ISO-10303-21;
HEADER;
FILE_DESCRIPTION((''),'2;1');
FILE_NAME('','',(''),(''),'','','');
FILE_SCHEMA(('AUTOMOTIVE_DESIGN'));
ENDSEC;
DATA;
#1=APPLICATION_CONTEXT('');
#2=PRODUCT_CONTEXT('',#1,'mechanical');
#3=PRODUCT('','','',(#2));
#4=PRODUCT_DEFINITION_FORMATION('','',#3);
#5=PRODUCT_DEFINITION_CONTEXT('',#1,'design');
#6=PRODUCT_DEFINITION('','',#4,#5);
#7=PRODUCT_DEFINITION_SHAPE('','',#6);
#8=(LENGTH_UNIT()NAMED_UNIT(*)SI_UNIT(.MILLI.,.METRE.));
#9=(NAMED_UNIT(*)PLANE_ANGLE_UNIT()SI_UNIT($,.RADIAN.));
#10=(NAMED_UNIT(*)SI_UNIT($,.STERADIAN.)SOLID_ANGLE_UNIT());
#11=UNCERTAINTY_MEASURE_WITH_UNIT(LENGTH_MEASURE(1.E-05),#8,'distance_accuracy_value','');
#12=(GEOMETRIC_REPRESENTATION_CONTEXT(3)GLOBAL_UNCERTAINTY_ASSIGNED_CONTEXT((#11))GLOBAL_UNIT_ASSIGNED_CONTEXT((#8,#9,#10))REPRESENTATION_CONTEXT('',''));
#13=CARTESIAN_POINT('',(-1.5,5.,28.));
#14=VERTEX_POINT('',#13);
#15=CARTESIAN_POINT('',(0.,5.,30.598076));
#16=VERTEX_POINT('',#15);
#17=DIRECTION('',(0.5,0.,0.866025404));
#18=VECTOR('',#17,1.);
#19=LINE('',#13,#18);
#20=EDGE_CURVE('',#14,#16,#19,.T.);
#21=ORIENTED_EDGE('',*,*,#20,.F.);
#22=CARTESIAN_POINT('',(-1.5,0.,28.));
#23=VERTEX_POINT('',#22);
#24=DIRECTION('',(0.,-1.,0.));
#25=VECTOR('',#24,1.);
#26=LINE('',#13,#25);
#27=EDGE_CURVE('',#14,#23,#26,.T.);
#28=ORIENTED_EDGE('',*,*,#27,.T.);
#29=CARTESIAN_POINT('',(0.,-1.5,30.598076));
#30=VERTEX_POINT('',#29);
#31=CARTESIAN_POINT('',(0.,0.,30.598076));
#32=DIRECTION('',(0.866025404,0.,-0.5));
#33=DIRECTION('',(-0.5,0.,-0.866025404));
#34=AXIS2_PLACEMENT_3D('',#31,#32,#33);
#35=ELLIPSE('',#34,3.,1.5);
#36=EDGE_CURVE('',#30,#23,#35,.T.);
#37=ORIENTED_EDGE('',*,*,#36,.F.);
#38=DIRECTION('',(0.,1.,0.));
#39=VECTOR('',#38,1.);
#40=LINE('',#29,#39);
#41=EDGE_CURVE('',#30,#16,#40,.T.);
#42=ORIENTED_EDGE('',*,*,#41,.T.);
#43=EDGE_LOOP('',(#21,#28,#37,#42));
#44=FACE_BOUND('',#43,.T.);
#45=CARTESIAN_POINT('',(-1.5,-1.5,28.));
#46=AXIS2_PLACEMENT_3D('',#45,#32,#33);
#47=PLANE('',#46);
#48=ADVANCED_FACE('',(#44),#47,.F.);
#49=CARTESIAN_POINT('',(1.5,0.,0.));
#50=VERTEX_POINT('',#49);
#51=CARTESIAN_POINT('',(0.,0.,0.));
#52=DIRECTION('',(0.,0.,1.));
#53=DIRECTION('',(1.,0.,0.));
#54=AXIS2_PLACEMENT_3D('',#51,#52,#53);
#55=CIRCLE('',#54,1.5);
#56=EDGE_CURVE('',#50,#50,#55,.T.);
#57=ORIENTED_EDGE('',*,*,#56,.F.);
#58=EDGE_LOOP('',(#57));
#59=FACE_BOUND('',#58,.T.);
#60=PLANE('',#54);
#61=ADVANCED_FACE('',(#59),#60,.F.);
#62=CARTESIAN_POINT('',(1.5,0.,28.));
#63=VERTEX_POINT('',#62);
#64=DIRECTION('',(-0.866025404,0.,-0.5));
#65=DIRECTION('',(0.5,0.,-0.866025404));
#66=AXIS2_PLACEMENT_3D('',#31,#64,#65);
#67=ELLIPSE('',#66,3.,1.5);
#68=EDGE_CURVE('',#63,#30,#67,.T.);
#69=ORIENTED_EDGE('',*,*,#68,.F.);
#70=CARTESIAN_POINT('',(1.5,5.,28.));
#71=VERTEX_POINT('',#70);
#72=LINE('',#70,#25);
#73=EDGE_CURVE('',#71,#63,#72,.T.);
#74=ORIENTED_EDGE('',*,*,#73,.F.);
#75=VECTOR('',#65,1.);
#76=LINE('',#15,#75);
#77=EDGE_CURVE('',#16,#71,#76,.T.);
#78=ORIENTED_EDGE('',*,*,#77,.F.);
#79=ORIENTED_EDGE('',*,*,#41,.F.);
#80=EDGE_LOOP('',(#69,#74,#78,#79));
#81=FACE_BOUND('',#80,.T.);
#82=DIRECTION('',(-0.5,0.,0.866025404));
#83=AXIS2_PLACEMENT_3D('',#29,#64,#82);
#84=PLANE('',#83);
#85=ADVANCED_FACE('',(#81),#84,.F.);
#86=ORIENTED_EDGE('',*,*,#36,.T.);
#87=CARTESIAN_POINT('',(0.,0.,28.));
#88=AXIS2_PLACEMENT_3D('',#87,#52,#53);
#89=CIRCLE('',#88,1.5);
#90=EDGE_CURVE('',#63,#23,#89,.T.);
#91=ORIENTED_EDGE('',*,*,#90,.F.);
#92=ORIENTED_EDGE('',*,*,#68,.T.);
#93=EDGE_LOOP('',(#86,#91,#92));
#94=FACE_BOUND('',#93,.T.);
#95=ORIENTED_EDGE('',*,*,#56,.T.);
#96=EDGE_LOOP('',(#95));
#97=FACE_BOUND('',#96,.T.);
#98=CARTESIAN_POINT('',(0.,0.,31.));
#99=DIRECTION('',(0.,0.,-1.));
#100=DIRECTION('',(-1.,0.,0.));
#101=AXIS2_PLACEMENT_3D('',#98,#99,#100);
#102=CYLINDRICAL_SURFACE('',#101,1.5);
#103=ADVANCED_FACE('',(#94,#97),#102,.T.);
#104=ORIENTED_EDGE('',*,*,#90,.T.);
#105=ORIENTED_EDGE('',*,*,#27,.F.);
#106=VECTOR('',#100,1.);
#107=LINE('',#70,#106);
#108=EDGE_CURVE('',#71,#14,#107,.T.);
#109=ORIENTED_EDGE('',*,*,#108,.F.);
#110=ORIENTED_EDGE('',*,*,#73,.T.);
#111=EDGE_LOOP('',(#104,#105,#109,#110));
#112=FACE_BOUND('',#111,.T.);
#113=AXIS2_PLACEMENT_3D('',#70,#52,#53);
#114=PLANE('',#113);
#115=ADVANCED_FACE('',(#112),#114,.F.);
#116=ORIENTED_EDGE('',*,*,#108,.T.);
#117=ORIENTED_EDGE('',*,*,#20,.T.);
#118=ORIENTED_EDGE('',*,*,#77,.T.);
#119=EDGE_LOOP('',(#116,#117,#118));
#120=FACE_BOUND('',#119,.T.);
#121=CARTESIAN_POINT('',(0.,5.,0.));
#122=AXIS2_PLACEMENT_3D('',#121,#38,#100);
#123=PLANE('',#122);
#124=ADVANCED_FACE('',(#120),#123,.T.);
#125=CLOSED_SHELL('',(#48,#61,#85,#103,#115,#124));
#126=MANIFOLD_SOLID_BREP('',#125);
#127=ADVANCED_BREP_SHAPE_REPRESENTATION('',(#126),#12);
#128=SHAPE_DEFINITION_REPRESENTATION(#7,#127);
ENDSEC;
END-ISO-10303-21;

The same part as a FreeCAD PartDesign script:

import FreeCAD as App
import Part
import Sketcher

V = App.Vector
Q = App.Units.Quantity


def add_polygon(sketch, points):
    """Adds a closed chain of lines whose ends are joined by coincident constraints."""
    first, n = sketch.GeometryCount, len(points)
    for a, b in zip(points, points[1:] + points[:1]):
        sketch.addGeometry(Part.LineSegment(App.Vector(*a, 0), App.Vector(*b, 0)), False)
    for i in range(n):
        sketch.addConstraint(Sketcher.Constraint("Coincident", first + i, 2, first + (i + 1) % n, 1))

doc = App.newDocument("Part")
params = doc.addObject("Spreadsheet::Sheet", "Params")
for row, (alias, value) in enumerate([
    ("sketch1_diameter", "3 mm"),
    ("pad1_length", "31 mm"),
    ("sketch2_width", "3 mm"),
    ("sketch2_height", "1.5 mm"),
    ("pocket1_length", "3 mm"),
    ("sketch3_width", "3 mm"),
    ("pocket2_length", "1.5 mm"),
    ("sketch4_width", "3 mm"),
    ("pad2_length", "5 mm"),
], start=1):
    params.set(f"A{row}", alias)
    params.set(f"B{row}", "=" + value)
    params.setAlias(f"B{row}", alias)

body = doc.addObject("PartDesign::Body", "Body")

# Sketch on XY plane
sketch1 = doc.addObject("Sketcher::SketchObject", "Sketch")
body.addObject(sketch1)
sketch1.AttachmentSupport = (doc.XY_Plane, [""])
sketch1.MapMode = "FlatFace"
sketch1.addGeometry(Part.Circle(V(0, 0, 0), V(0, 0, 1), 1.5), False)
sketch1.addConstraint([
    Sketcher.Constraint("Coincident", 0, 3, -1, 1),
    Sketcher.Constraint("Diameter", 0, Q("3 mm")),
])
sketch1.setExpression("Constraints[1]", "Params.sketch1_diameter")
pad1 = doc.addObject("PartDesign::Pad", "Pad")
body.addObject(pad1)
pad1.Profile = sketch1
pad1.setExpression("Length", "Params.pad1_length")

# Sketch on XY plane
sketch2 = doc.addObject("Sketcher::SketchObject", "Sketch001")
body.addObject(sketch2)
sketch2.AttachmentSupport = (doc.XY_Plane, [""])
sketch2.MapMode = "FlatFace"
sketch2.AttachmentOffset = App.Placement(V(0, 0, 31), App.Rotation())
add_polygon(sketch2, [(-1.5, 1.5), (-1.5, 0), (1.5, 0), (1.5, 1.5)])  # lines 0-3
sketch2.addConstraint([
    Sketcher.Constraint("Vertical", 0),
    Sketcher.Constraint("Horizontal", 1),
    Sketcher.Constraint("Vertical", 2),
    Sketcher.Constraint("Horizontal", 3),
    Sketcher.Constraint("Symmetric", 0, 2, 1, 2, -1, 1),
    Sketcher.Constraint("DistanceX", 1, 1, 1, 2, Q("3 mm")),
    Sketcher.Constraint("DistanceY", 0, 2, 0, 1, Q("1.5 mm")),
])
sketch2.setExpression("Constraints[9]", "Params.sketch2_width")
sketch2.setExpression("Constraints[10]", "Params.sketch2_height")
pocket1 = doc.addObject("PartDesign::Pocket", "Pocket")
body.addObject(pocket1)
pocket1.Profile = sketch2
pocket1.setExpression("Length", "Params.pocket1_length")

# Sketch on XZ plane
sketch3 = doc.addObject("Sketcher::SketchObject", "Sketch002")
body.addObject(sketch3)
sketch3.AttachmentSupport = (doc.XZ_Plane, [""])
sketch3.MapMode = "FlatFace"
add_polygon(sketch3, [(0, 30.6), (-1.5, 28), (-1.5, 31), (1.5, 31), (1.5, 28)])  # lines 0-4
sketch3.addConstraint([
    Sketcher.Constraint("Vertical", 1),
    Sketcher.Constraint("Horizontal", 2),
    Sketcher.Constraint("Vertical", 3),
    Sketcher.Constraint("Symmetric", 0, 2, 3, 2, -2),
    Sketcher.Constraint("PointOnObject", 4, 2, -2),
    Sketcher.Constraint("Equal", 2, 1),
    Sketcher.Constraint("DistanceX", 2, 1, 2, 2, Q("3 mm")),
    Sketcher.Constraint("Angle", 0, Q("-120 deg")),
    Sketcher.Constraint("DistanceY", -1, 1, 0, 2, Q("28 mm")),
])
sketch3.setExpression("Constraints[11]", "Params.sketch3_width")
pocket2 = doc.addObject("PartDesign::Pocket", "Pocket001")
body.addObject(pocket2)
pocket2.Profile = sketch3
pocket2.setExpression("Length", "Params.pocket2_length")
pocket2.Reversed = True

# Sketch on XZ plane
sketch4 = doc.addObject("Sketcher::SketchObject", "Sketch003")
body.addObject(sketch4)
sketch4.AttachmentSupport = (doc.XZ_Plane, [""])
sketch4.MapMode = "FlatFace"
add_polygon(sketch4, [(0, 30.6), (1.5, 28), (-1.5, 28)])  # lines 0-2
sketch4.addConstraint([
    Sketcher.Constraint("Horizontal", 1),
    Sketcher.Constraint("PointOnObject", 2, 2, -2),
    Sketcher.Constraint("Equal", 0, 2),
    Sketcher.Constraint("DistanceX", 1, 2, 1, 1, Q("3 mm")),
    Sketcher.Constraint("Angle", 0, Q("-60 deg")),
    Sketcher.Constraint("DistanceY", -1, 1, 0, 2, Q("28 mm")),
])
sketch4.setExpression("Constraints[6]", "Params.sketch4_width")
pad2 = doc.addObject("PartDesign::Pad", "Pad001")
body.addObject(pad2)
pad2.Profile = sketch4
pad2.setExpression("Length", "Params.pad2_length")
pad2.Reversed = True

doc.recompute()
